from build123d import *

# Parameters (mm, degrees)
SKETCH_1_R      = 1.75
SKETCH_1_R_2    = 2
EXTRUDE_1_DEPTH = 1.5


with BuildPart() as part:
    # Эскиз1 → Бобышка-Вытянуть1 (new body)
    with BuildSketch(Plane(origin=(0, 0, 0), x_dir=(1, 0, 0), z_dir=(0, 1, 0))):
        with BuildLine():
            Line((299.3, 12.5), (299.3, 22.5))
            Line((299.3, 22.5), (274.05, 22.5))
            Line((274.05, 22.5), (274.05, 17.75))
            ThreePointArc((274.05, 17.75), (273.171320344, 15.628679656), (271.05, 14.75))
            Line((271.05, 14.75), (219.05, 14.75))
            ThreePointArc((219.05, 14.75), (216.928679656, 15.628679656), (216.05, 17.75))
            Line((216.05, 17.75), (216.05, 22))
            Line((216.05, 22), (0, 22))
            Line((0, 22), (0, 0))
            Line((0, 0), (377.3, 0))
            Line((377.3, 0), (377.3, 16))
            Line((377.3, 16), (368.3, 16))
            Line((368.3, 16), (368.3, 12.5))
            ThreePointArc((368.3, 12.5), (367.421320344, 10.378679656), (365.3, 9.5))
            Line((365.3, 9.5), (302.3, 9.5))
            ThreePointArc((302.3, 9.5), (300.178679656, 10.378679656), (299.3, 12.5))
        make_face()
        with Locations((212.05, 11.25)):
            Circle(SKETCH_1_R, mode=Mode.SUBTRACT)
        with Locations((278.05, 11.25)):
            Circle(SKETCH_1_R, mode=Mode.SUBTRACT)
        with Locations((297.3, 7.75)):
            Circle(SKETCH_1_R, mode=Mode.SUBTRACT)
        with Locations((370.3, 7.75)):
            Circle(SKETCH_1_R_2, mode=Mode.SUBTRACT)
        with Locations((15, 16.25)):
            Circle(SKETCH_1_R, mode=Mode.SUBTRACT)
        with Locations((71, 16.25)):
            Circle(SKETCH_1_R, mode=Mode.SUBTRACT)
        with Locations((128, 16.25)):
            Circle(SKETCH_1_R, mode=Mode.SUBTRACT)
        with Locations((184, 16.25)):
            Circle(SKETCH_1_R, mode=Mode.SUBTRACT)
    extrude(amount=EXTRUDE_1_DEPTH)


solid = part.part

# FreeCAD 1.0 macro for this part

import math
import FreeCAD as App
import Part
import Sketcher

V = App.Vector
Q = App.Units.Quantity

doc = App.newDocument("Part")
params = doc.addObject("Spreadsheet::Sheet", "Params")
for row, (alias, value) in enumerate([
    ("sketch1_diameter", "4 mm"),
    ("sketch1_radius", "3 mm"),
    ("sketch1_diameter2", "3.5 mm"),
    ("sketch1_width", "52 mm"),
    ("sketch1_width2", "9 mm"),
    ("pad1_length", "1.5 mm"),
], start=1):
    params.set(f"A{row}", alias)
    params.set(f"B{row}", "=" + value)
    params.setAlias(f"B{row}", alias)

body = doc.addObject("PartDesign::Body", "Body")

sketch1 = doc.addObject("Sketcher::SketchObject", "Sketch")
body.addObject(sketch1)
sketch1.AttachmentSupport = (doc.XZ_Plane, [""])
sketch1.MapMode = "FlatFace"
sketch1.addGeometry([
    Part.LineSegment(V(299.3, -12.5, 0), V(299.3, -22.5, 0)),
    Part.LineSegment(V(299.3, -22.5, 0), V(274.1, -22.5, 0)),
    Part.LineSegment(V(274.1, -22.5, 0), V(274.1, -17.8, 0)),
    Part.ArcOfCircle(Part.Circle(V(271.1, -17.7, 0), V(0, 0, 1), 3), math.radians(0), math.radians(90)),
    Part.LineSegment(V(271.1, -14.8, 0), V(219.1, -14.8, 0)),
    Part.ArcOfCircle(Part.Circle(V(219, -17.7, 0), V(0, 0, 1), 3), math.radians(90), math.radians(180)),
    Part.LineSegment(V(216.1, -17.8, 0), V(216.1, -22, 0)),
    Part.LineSegment(V(216.1, -22, 0), V(0, -22, 0)),
    Part.LineSegment(V(0, -22, 0), V(0, 0, 0)),
    Part.LineSegment(V(0, 0, 0), V(377.3, 0, 0)),
    Part.LineSegment(V(377.3, 0, 0), V(377.3, -16, 0)),
    Part.LineSegment(V(377.3, -16, 0), V(368.3, -16, 0)),
    Part.LineSegment(V(368.3, -16, 0), V(368.3, -12.5, 0)),
    Part.ArcOfCircle(Part.Circle(V(365.3, -12.5, 0), V(0, 0, 1), 3), math.radians(0), math.radians(90)),
    Part.LineSegment(V(365.3, -9.5, 0), V(302.3, -9.5, 0)),
    Part.ArcOfCircle(Part.Circle(V(302.3, -12.5, 0), V(0, 0, 1), 3), math.radians(90), math.radians(180)),
    Part.Circle(V(297.3, -7.8, 0), V(0, 0, 1), 1.8),
    Part.Circle(V(370.3, -7.8, 0), V(0, 0, 1), 2),
    Part.Circle(V(212.1, -11.2, 0), V(0, 0, 1), 1.8),
    Part.Circle(V(278.1, -11.2, 0), V(0, 0, 1), 1.8),
    Part.Circle(V(15, -16.2, 0), V(0, 0, 1), 1.8),
    Part.Circle(V(71, -16.2, 0), V(0, 0, 1), 1.8),
    Part.Circle(V(128, -16.2, 0), V(0, 0, 1), 1.8),
    Part.Circle(V(184, -16.2, 0), V(0, 0, 1), 1.8),
], False)
sketch1.addConstraint([
    Sketcher.Constraint("Coincident", 0, 2, 1, 1),
    Sketcher.Constraint("Coincident", 1, 2, 2, 1),
    Sketcher.Constraint("Tangent", 2, 2, 3, 1),
    Sketcher.Constraint("Tangent", 3, 2, 4, 1),
    Sketcher.Constraint("Tangent", 4, 2, 5, 1),
    Sketcher.Constraint("Tangent", 5, 2, 6, 1),
    Sketcher.Constraint("Coincident", 6, 2, 7, 1),
    Sketcher.Constraint("Coincident", 7, 2, 8, 1),
    Sketcher.Constraint("Coincident", 8, 2, 9, 1),
    Sketcher.Constraint("Coincident", 9, 2, 10, 1),
    Sketcher.Constraint("Coincident", 10, 2, 11, 1),
    Sketcher.Constraint("Coincident", 11, 2, 12, 1),
    Sketcher.Constraint("Tangent", 12, 2, 13, 1),
    Sketcher.Constraint("Tangent", 13, 2, 14, 1),
    Sketcher.Constraint("Tangent", 14, 2, 15, 1),
    Sketcher.Constraint("Tangent", 15, 2, 0, 1),
    Sketcher.Constraint("Vertical", 0),
    Sketcher.Constraint("Horizontal", 1),
    Sketcher.Constraint("Vertical", 2),
    Sketcher.Constraint("Horizontal", 4),
    Sketcher.Constraint("Vertical", 6),
    Sketcher.Constraint("Horizontal", 7),
    Sketcher.Constraint("Vertical", 8),
    Sketcher.Constraint("Horizontal", 9),
    Sketcher.Constraint("Vertical", 10),
    Sketcher.Constraint("Horizontal", 11),
    Sketcher.Constraint("Vertical", 12),
    Sketcher.Constraint("Horizontal", 14),
    Sketcher.Constraint("Coincident", 8, 2, -1, 1),
    Sketcher.Constraint("Equal", 3, 5),
    Sketcher.Constraint("Equal", 5, 13),
    Sketcher.Constraint("Equal", 13, 15),
    Sketcher.Constraint("Equal", 16, 18),
    Sketcher.Constraint("Equal", 18, 19),
    Sketcher.Constraint("Equal", 19, 20),
    Sketcher.Constraint("Equal", 20, 21),
    Sketcher.Constraint("Equal", 21, 22),
    Sketcher.Constraint("Equal", 22, 23),
    Sketcher.Constraint("Horizontal", 16, 3, 17, 3),
    Sketcher.Constraint("Horizontal", 18, 3, 19, 3),
    Sketcher.Constraint("Horizontal", 20, 3, 21, 3),
    Sketcher.Constraint("Horizontal", 21, 3, 22, 3),
    Sketcher.Constraint("Horizontal", 22, 3, 23, 3),
    Sketcher.Constraint("Diameter", 17, Q("4 mm")),
    Sketcher.Constraint("Radius", 3, Q("3 mm")),
    Sketcher.Constraint("Diameter", 16, Q("3.5 mm")),
    Sketcher.Constraint("DistanceX", 4, 2, 4, 1, Q("52 mm")),
    Sketcher.Constraint("DistanceX", 11, 2, 11, 1, Q("9 mm")),
    Sketcher.Constraint("DistanceX", 14, 2, 14, 1, Q("63 mm")),
    Sketcher.Constraint("DistanceY", 0, 2, 0, 1, Q("10 mm")),
    Sketcher.Constraint("DistanceY", 8, 1, 8, 2, Q("22 mm")),
    Sketcher.Constraint("DistanceY", 10, 2, 10, 1, Q("16 mm")),
    Sketcher.Constraint("DistanceX", 9, 1, 9, 2, Q("377.3 mm")),
    Sketcher.Constraint("DistanceY", 12, 1, 12, 2, Q("3.5 mm")),
    Sketcher.Constraint("DistanceX", -1, 1, 20, 3, Q("15 mm")),
    Sketcher.Constraint("DistanceX", -1, 1, 21, 3, Q("71 mm")),
    Sketcher.Constraint("DistanceX", -1, 1, 22, 3, Q("128 mm")),
    Sketcher.Constraint("DistanceX", -1, 1, 23, 3, Q("184 mm")),
    Sketcher.Constraint("DistanceX", 16, 3, 15, 3, Q("5 mm")),
    Sketcher.Constraint("DistanceY", 3, 3, 16, 3, Q("10 mm")),
    Sketcher.Constraint("DistanceX", 13, 3, 17, 3, Q("5 mm")),
    Sketcher.Constraint("DistanceX", 18, 3, 5, 3, Q("7 mm")),
    Sketcher.Constraint("DistanceX", 3, 3, 19, 3, Q("7 mm")),
    Sketcher.Constraint("DistanceY", 20, 3, 18, 3, Q("5 mm")),
    Sketcher.Constraint("DistanceX", 1, 2, 1, 1, Q("25.25 mm")),
    Sketcher.Constraint("DistanceY", 2, 1, 2, 2, Q("4.75 mm")),
    Sketcher.Constraint("DistanceY", 5, 3, 18, 3, Q("6.5 mm")),
])
sketch1.setExpression("Constraints[43]", "Params.sketch1_diameter")
sketch1.setExpression("Constraints[44]", "Params.sketch1_radius")
sketch1.setExpression("Constraints[45]", "Params.sketch1_diameter2")
sketch1.setExpression("Constraints[46]", "Params.sketch1_width")
sketch1.setExpression("Constraints[47]", "Params.sketch1_width2")
pad1 = doc.addObject("PartDesign::Pad", "Pad")
body.addObject(pad1)
pad1.Profile = sketch1
pad1.setExpression("Length", "Params.pad1_length")
pad1.Reversed = True

doc.recompute()
